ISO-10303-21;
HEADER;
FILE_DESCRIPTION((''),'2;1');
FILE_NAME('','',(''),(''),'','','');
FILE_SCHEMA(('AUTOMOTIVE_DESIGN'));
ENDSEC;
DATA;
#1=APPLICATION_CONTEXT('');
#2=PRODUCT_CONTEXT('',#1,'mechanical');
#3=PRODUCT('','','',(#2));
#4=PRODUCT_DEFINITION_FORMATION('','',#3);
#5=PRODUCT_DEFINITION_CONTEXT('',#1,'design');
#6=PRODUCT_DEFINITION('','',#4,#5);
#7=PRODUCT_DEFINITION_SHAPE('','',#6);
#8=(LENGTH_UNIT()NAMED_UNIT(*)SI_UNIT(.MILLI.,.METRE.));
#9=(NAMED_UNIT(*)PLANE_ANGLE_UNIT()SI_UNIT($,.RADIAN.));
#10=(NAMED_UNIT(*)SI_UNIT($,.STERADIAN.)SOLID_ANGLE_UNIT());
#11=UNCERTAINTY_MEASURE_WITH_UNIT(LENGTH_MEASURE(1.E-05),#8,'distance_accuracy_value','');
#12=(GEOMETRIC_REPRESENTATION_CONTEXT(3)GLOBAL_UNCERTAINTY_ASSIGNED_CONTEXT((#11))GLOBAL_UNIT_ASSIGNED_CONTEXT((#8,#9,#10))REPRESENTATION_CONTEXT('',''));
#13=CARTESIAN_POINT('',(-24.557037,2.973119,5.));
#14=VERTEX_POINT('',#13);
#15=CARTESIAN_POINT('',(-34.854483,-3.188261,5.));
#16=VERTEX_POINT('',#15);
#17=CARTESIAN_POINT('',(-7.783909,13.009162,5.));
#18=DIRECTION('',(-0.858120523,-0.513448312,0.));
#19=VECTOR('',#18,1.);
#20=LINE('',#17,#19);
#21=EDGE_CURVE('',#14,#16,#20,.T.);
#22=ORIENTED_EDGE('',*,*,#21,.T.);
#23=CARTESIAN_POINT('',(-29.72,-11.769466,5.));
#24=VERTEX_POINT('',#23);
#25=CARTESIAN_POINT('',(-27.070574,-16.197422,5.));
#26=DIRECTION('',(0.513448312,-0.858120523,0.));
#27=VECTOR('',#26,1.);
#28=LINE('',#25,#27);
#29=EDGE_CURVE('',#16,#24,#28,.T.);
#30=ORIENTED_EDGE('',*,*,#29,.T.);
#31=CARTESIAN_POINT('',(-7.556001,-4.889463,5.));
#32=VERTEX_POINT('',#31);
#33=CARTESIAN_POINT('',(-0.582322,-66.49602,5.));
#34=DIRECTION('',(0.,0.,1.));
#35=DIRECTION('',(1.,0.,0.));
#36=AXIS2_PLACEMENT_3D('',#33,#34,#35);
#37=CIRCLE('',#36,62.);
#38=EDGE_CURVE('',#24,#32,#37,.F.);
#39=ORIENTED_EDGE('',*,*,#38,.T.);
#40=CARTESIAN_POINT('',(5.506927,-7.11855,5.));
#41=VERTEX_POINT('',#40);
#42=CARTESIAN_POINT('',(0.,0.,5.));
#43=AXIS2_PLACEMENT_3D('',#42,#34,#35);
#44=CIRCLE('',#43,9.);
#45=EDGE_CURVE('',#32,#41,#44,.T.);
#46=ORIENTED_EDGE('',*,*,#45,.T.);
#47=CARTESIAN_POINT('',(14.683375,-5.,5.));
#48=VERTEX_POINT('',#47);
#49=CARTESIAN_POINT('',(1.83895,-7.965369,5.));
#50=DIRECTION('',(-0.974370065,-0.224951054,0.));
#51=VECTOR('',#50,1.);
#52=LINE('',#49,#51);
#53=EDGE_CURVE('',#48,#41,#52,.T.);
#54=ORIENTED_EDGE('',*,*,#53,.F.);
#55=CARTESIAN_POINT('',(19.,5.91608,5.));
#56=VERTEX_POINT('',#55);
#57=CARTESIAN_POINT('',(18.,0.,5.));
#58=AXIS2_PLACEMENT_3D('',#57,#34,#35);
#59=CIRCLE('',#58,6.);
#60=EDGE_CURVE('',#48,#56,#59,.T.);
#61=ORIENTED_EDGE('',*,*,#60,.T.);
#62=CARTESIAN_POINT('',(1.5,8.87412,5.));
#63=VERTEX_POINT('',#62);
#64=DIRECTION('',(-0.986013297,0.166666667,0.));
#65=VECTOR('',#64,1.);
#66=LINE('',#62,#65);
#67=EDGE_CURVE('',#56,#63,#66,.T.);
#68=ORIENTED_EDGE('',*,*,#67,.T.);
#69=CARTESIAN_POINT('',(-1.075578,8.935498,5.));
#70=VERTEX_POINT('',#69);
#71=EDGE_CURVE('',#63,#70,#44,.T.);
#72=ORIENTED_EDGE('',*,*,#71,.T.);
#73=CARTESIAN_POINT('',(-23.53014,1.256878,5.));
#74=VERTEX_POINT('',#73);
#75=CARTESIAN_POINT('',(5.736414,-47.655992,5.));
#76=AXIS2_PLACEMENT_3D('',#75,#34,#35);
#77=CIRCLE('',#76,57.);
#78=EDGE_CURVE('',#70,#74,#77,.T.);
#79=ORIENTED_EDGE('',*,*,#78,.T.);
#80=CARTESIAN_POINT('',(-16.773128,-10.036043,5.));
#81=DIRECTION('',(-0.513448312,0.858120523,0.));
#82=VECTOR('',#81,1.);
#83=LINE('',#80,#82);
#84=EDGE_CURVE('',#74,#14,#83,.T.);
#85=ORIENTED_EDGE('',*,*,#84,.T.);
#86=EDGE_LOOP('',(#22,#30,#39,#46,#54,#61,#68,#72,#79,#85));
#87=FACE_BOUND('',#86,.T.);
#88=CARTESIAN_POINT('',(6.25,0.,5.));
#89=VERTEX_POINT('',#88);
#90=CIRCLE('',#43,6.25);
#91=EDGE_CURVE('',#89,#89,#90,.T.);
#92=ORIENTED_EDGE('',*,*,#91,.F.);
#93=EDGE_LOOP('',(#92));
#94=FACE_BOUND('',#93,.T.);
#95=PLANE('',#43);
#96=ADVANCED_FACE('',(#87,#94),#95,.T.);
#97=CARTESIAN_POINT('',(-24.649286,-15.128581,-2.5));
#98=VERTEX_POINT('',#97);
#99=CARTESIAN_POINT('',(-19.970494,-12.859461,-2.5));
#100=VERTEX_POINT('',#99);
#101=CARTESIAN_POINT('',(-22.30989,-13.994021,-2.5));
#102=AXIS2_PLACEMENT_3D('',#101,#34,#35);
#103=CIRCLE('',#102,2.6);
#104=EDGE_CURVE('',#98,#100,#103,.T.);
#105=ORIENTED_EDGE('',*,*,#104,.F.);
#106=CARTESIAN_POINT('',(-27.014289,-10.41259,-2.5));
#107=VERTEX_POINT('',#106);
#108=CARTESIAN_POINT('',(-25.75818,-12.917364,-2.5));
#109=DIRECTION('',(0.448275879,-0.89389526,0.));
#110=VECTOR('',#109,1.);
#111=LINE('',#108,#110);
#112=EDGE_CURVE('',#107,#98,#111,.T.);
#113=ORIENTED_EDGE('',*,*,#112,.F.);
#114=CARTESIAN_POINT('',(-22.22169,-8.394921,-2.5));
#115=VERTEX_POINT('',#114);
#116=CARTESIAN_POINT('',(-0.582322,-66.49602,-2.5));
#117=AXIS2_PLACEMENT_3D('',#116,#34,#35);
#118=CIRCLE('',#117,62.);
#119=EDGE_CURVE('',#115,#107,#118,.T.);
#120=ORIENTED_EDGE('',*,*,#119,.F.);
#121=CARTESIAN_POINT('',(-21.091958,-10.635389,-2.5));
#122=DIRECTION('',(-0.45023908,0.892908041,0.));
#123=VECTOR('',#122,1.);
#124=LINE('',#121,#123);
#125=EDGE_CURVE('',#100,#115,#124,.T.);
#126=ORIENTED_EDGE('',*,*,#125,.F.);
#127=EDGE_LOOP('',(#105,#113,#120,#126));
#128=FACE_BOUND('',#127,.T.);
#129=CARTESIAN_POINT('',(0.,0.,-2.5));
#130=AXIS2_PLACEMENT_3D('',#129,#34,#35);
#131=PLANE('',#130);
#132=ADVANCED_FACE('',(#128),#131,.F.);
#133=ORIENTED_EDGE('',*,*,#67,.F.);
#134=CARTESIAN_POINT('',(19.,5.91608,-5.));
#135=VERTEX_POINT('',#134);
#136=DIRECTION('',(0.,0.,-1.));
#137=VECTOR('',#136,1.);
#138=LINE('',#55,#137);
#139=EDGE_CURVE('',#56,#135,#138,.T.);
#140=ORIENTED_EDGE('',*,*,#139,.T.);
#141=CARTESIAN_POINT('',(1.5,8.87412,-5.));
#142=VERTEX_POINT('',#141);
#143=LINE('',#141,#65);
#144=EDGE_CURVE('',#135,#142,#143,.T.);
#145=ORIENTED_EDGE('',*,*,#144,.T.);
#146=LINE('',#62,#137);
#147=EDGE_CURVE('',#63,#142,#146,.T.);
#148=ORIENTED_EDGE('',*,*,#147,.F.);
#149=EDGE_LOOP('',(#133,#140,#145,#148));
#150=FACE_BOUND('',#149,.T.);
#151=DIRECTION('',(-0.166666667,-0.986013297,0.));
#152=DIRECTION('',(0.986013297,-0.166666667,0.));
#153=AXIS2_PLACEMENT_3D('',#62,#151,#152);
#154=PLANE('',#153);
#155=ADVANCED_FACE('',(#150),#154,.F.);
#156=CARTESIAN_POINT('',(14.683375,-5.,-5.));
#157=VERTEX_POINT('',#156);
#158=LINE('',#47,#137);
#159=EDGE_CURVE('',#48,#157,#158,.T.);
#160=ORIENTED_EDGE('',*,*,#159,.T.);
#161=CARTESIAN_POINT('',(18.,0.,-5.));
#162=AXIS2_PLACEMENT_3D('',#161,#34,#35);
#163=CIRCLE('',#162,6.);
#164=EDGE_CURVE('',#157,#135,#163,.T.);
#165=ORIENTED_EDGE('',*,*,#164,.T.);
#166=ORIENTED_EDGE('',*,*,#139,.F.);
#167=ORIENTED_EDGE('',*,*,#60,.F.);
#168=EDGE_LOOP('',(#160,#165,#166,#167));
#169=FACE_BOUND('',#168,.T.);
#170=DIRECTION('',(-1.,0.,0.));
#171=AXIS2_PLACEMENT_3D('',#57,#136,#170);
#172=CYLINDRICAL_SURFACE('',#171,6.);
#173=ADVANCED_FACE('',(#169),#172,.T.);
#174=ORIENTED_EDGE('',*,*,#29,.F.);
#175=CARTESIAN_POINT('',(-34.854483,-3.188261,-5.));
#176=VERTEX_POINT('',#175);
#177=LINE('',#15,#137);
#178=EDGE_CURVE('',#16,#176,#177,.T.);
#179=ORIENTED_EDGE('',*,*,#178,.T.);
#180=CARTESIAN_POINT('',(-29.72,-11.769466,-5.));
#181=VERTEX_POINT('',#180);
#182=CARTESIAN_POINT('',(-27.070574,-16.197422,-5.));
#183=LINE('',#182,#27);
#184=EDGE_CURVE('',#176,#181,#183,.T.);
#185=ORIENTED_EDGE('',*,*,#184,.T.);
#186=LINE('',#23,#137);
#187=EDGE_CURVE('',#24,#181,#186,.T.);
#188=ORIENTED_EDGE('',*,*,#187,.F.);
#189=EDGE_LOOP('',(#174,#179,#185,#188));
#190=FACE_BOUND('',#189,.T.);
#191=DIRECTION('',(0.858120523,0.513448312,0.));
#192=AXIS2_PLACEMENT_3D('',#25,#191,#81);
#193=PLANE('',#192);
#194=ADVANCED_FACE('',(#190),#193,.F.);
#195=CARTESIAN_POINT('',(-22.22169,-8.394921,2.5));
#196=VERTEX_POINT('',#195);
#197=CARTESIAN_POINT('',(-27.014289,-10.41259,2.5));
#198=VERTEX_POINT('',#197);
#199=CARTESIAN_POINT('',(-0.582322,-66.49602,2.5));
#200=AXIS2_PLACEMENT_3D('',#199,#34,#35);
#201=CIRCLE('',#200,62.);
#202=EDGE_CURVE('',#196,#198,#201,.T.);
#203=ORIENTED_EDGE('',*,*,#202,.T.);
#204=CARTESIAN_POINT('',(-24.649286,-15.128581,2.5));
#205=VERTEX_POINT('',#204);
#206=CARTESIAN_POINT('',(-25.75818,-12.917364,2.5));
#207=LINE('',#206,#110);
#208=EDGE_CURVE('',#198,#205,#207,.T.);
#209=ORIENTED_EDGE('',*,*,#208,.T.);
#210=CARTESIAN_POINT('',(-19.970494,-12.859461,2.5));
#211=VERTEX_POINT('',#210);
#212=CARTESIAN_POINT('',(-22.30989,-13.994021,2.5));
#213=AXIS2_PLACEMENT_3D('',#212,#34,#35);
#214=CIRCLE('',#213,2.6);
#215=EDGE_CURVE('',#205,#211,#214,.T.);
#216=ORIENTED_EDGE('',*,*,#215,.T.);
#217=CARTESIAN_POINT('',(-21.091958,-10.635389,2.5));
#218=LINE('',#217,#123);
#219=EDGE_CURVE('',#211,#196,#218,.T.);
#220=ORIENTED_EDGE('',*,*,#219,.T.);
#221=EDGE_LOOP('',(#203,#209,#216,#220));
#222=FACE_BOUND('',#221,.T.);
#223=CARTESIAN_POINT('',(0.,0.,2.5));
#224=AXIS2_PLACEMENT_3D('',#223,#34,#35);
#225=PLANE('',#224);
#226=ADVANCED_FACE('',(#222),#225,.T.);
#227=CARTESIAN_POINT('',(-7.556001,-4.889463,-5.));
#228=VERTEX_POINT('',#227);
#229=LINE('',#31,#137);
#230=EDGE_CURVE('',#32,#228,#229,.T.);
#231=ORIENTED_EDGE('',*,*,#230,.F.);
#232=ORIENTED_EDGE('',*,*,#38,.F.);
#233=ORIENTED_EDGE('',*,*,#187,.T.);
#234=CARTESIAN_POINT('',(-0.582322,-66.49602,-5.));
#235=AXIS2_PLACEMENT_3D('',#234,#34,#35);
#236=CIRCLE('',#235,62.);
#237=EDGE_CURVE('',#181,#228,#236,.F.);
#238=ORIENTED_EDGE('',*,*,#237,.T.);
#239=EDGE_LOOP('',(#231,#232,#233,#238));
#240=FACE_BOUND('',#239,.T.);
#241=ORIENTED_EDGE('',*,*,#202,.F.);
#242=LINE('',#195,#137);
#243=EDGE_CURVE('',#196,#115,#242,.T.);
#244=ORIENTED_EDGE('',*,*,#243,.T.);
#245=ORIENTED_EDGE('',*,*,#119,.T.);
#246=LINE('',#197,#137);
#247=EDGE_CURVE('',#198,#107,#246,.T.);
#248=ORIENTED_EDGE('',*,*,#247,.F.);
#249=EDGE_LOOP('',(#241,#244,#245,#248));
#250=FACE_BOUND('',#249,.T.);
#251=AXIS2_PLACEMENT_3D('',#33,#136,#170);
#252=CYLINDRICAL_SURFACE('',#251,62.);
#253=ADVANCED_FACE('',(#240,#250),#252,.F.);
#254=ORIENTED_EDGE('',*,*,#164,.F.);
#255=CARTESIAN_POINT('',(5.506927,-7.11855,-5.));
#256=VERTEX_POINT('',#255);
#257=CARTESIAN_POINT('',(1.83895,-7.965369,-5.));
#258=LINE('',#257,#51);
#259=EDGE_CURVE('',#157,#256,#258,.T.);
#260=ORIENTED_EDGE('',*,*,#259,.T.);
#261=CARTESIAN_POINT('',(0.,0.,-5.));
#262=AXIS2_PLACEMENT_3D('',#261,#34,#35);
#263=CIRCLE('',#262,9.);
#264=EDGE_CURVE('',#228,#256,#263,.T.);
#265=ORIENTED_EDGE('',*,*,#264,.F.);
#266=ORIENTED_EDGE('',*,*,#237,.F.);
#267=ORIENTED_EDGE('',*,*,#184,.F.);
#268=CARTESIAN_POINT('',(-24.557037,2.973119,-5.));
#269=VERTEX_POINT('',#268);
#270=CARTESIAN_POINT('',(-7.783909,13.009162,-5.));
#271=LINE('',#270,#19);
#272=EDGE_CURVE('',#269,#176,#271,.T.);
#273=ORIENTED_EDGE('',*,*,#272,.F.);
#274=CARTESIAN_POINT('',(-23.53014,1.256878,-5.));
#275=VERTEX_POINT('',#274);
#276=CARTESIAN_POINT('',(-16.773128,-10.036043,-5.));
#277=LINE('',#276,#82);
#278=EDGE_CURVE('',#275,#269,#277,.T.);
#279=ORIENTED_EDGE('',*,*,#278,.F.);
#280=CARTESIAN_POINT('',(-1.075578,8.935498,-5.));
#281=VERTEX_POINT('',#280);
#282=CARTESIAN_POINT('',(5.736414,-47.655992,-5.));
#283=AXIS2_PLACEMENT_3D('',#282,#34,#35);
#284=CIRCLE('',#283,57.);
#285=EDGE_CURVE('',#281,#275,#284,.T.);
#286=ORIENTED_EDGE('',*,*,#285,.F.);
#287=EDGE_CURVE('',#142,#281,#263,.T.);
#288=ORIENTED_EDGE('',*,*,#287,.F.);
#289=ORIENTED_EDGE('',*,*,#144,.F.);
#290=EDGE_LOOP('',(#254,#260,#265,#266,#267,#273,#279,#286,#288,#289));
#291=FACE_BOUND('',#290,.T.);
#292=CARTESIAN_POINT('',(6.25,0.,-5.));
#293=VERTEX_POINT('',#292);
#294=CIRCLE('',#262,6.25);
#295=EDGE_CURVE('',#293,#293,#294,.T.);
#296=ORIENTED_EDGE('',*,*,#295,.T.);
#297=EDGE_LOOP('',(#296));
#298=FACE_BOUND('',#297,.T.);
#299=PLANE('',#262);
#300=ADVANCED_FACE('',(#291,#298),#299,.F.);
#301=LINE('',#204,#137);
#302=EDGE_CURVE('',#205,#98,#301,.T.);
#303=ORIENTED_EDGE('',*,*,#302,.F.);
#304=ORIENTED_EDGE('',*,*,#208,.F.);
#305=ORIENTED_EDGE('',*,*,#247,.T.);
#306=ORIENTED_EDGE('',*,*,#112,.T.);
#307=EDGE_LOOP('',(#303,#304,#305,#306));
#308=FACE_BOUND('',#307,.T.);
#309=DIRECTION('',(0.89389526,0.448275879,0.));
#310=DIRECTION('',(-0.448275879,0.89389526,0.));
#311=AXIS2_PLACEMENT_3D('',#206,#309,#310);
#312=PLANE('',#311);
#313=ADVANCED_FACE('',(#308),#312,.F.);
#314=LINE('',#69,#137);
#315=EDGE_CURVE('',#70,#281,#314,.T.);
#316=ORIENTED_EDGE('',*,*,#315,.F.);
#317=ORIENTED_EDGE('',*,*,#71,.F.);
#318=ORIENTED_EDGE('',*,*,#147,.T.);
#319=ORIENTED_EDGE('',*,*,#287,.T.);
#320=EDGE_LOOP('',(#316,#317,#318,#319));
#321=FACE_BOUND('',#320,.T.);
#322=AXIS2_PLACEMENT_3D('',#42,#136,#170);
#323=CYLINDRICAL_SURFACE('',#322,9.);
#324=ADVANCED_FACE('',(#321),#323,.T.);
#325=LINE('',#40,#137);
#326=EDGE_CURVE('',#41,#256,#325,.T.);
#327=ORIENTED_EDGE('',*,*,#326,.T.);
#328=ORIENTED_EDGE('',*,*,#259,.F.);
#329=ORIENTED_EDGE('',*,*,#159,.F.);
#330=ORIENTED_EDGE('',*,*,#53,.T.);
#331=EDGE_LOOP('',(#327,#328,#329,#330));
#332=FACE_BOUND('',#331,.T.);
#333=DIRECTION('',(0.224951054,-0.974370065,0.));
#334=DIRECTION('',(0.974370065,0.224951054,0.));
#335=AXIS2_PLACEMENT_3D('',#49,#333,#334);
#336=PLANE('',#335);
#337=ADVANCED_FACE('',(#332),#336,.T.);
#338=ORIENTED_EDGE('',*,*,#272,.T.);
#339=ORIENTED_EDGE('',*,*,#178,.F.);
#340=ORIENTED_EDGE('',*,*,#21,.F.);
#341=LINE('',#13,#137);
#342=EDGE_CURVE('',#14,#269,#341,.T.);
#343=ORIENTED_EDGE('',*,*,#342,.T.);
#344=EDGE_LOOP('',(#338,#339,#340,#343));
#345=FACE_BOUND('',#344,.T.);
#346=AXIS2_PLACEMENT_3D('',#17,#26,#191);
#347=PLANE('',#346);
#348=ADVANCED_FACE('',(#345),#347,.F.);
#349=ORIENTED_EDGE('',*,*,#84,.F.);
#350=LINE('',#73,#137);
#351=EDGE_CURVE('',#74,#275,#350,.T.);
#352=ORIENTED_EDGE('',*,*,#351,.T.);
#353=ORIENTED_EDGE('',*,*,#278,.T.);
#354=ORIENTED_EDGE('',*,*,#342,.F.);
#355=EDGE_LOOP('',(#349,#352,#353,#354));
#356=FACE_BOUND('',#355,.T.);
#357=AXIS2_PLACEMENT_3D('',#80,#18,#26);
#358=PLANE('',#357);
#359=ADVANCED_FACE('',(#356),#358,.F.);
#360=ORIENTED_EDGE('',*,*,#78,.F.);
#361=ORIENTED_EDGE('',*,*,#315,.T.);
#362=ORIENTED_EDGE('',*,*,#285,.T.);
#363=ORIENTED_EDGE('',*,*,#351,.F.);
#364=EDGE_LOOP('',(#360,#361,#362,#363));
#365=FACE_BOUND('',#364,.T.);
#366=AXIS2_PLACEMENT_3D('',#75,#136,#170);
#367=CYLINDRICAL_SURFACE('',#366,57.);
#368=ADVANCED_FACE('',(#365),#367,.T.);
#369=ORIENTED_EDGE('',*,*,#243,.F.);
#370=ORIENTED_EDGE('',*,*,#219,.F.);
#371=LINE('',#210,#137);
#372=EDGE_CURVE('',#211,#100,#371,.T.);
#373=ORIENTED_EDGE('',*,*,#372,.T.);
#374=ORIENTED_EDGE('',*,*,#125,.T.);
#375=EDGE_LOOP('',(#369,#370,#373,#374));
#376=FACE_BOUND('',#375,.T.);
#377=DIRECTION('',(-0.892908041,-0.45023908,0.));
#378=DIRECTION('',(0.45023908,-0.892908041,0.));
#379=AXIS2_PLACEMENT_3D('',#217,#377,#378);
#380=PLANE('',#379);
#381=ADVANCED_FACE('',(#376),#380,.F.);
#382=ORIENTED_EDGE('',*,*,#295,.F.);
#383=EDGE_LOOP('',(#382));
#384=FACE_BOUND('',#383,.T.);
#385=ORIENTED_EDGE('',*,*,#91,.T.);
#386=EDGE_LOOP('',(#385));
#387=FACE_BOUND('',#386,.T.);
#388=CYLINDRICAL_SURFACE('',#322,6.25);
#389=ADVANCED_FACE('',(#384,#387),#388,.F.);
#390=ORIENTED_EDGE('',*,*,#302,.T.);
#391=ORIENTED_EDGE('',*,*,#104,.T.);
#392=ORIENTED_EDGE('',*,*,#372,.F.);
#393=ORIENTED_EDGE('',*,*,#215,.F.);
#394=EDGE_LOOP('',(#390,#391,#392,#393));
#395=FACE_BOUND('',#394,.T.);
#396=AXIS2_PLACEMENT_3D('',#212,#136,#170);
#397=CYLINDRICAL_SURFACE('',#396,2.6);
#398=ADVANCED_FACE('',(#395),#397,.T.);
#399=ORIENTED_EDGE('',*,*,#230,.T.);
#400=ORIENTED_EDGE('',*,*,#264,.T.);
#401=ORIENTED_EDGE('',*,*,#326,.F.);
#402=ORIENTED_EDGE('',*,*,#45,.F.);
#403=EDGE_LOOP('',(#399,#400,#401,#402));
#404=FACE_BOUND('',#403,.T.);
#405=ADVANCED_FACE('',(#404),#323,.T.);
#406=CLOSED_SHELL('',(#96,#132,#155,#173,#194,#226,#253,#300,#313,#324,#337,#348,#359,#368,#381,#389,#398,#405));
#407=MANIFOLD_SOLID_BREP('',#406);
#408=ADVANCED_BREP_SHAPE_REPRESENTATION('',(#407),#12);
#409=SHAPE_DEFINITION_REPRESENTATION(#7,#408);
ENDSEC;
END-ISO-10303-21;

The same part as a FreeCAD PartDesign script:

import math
import FreeCAD as App
import Part
import Sketcher
Q = App.Units.Quantity

doc = App.newDocument("Part")
body = doc.addObject("PartDesign::Body", "Body")

# Sketch on XY plane
sketch1 = doc.addObject("Sketcher::SketchObject", "Sketch")
body.addObject(sketch1)
sketch1.AttachmentSupport = (doc.XY_Plane, [""])
sketch1.MapMode = "FlatFace"
sketch1.addGeometry([
    Part.ArcOfCircle(Part.Circle(App.Vector(18, 0, 0), App.Vector(0, 0, 1), 6), math.radians(-123.55731), math.radians(80.405932)),  # 0
    Part.LineSegment(App.Vector(19, 5.91608, 0), App.Vector(1.5, 8.87412, 0)),  # 1
    Part.ArcOfCircle(Part.Circle(App.Vector(0, 0, 0), App.Vector(0, 0, 1), 9), math.radians(80.405932), math.radians(96.863744)),  # 2
    Part.ArcOfCircle(Part.Circle(App.Vector(5.736414, -47.655992, 0), App.Vector(0, 0, 1), 57), math.radians(96.863744), math.radians(120.893794)),  # 3
    Part.LineSegment(App.Vector(-23.53014, 1.256878, 0), App.Vector(-24.557037, 2.973119, 0)),  # 4
    Part.LineSegment(App.Vector(-24.557037, 2.973119, 0), App.Vector(-34.854483, -3.188261, 0)),  # 5
    Part.LineSegment(App.Vector(-34.854483, -3.188261, 0), App.Vector(-29.72, -11.769466, 0)),  # 6
    Part.ArcOfCircle(Part.Circle(App.Vector(-0.582322, -66.49602, 0), App.Vector(0, 0, 1), 62), math.radians(96.458221), math.radians(118.031866)),  # 7
    Part.ArcOfCircle(Part.Circle(App.Vector(0, 0, 0), App.Vector(0, 0, 1), 9), math.radians(-147.093226), math.radians(-52.274379)),  # 8
    Part.LineSegment(App.Vector(5.506927, -7.11855, 0), App.Vector(14.683375, -5, 0)),  # 9
    Part.Circle(App.Vector(0, 0, 0), App.Vector(0, 0, 1), 6.25),  # 10
], False)
sketch1.addConstraint([
    Sketcher.Constraint("Coincident", 0, 2, 1, 1),
    Sketcher.Constraint("Coincident", 1, 2, 2, 1),
    Sketcher.Constraint("Coincident", 2, 2, 3, 1),
    Sketcher.Constraint("Coincident", 3, 2, 4, 1),
    Sketcher.Constraint("Coincident", 4, 2, 5, 1),
    Sketcher.Constraint("Coincident", 5, 2, 6, 1),
    Sketcher.Constraint("Coincident", 6, 2, 7, 2),
    Sketcher.Constraint("Coincident", 7, 1, 8, 1),
    Sketcher.Constraint("Coincident", 8, 2, 9, 1),
    Sketcher.Constraint("Coincident", 9, 2, 0, 1),
    Sketcher.Constraint("Coincident", 2, 3, -1, 1),
    Sketcher.Constraint("Coincident", 8, 3, -1, 1),
    Sketcher.Constraint("Coincident", 10, 3, -1, 1),
    Sketcher.Constraint("PointOnObject", 0, 3, -1),
    Sketcher.Constraint("Radius", 0, Q("6 mm")),
    Sketcher.Constraint("Radius", 2, Q("9 mm")),
    Sketcher.Constraint("Radius", 3, Q("57 mm")),
    Sketcher.Constraint("Radius", 7, Q("62 mm")),
    Sketcher.Constraint("Radius", 8, Q("9 mm")),
    Sketcher.Constraint("Diameter", 10, Q("12.5 mm")),
    Sketcher.Constraint("Distance", 4, Q("2 mm")),
    Sketcher.Constraint("Distance", 5, Q("12 mm")),
    Sketcher.Constraint("Distance", 6, Q("10 mm")),
    Sketcher.Constraint("DistanceX", -1, 1, 0, 3, Q("18 mm")),
    Sketcher.Constraint("DistanceX", -1, 1, 0, 2, Q("19 mm")),
    Sketcher.Constraint("DistanceY", 9, 2, -1, 1, Q("5 mm")),
    Sketcher.Constraint("DistanceX", -1, 1, 1, 2, Q("1.5 mm")),
    Sketcher.Constraint("DistanceX", 6, 2, -1, 1, Q("29.72 mm")),
    Sketcher.Constraint("DistanceX", 7, 1, -1, 1, Q("7.556001 mm")),
    Sketcher.Constraint("DistanceY", -1, 1, 2, 2, Q("8.935498 mm")),
    Sketcher.Constraint("DistanceY", 3, 3, -1, 1, Q("47.655992 mm")),
    Sketcher.Constraint("DistanceX", 7, 3, -1, 1, Q("0.582322 mm")),
    Sketcher.Constraint("DistanceX", 3, 2, -1, 1, Q("23.53014 mm")),
    Sketcher.Constraint("DistanceY", -1, 1, 4, 2, Q("2.973119 mm")),
    Sketcher.Constraint("DistanceY", 8, 2, -1, 1, Q("7.11855 mm")),
])
pad1 = doc.addObject("PartDesign::Pad", "Pad")
body.addObject(pad1)
pad1.Profile = sketch1
pad1.Length = 10
pad1.Midplane = True

# Sketch on XY plane
sketch2 = doc.addObject("Sketcher::SketchObject", "Sketch001")
body.addObject(sketch2)
sketch2.AttachmentSupport = (doc.XY_Plane, [""])
sketch2.MapMode = "FlatFace"
sketch2.addGeometry([
    Part.ArcOfCircle(Part.Circle(App.Vector(-0.6, -66.5, 0), App.Vector(0, 0, 1), 62), math.radians(110.43), math.radians(115.23)),
    Part.LineSegment(App.Vector(-27, -10.4, 0), App.Vector(-24.6, -15.1, 0)),
    Part.ArcOfCircle(Part.Circle(App.Vector(-22.3, -14, 0), App.Vector(0, 0, 1), 2.6), math.radians(-154), math.radians(26)),
    Part.LineSegment(App.Vector(-20, -12.9, 0), App.Vector(-22.2, -8.4, 0)),
], False)
sketch2.addConstraint([
    Sketcher.Constraint("Coincident", 0, 2, 1, 1),
    Sketcher.Constraint("Coincident", 1, 2, 2, 1),
    Sketcher.Constraint("Coincident", 2, 2, 3, 1),
    Sketcher.Constraint("Coincident", 3, 2, 0, 1),
    Sketcher.Constraint("Radius", 0, Q("62 mm")),
    Sketcher.Constraint("Radius", 2, Q("2.6 mm")),
    Sketcher.Constraint("Distance", 3, Q("5 mm")),
    Sketcher.Constraint("DistanceY", 0, 3, 2, 3, Q("52.501999 mm")),
    Sketcher.Constraint("DistanceX", 0, 2, 2, 3, Q("4.704399 mm")),
    Sketcher.Constraint("DistanceX", 0, 2, 3, 2, Q("4.792599 mm")),
    Sketcher.Constraint("DistanceY", 2, 3, 3, 2, Q("5.599101 mm")),
    Sketcher.Constraint("DistanceX", 0, 3, -1, 1, Q("0.582322 mm")),
    Sketcher.Constraint("DistanceY", 0, 3, -1, 1, Q("66.49602 mm")),
    Sketcher.Constraint("DistanceY", 1, 2, -1, 1, Q("15.128581 mm")),
])
pad2 = doc.addObject("PartDesign::Pad", "Pad001")
body.addObject(pad2)
pad2.Profile = sketch2
pad2.Length = 5
pad2.Midplane = True

doc.recompute()
